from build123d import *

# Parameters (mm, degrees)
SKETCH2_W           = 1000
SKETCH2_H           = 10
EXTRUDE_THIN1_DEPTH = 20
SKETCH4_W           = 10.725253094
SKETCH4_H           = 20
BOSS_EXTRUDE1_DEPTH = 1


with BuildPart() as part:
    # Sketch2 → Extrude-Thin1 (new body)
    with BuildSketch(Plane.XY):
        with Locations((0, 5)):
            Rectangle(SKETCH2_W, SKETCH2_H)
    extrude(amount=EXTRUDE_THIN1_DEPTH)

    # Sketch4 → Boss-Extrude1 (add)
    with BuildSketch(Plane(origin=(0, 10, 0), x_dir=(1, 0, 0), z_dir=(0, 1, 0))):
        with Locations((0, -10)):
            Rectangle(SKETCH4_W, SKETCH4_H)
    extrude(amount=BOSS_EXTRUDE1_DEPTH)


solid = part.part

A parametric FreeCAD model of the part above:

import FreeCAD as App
import Part
import Sketcher

V = App.Vector
Q = App.Units.Quantity

doc = App.newDocument("Part")
body = doc.addObject("PartDesign::Body", "Body")

sketch1 = body.newObject("Sketcher::SketchObject", "Sketch")
sketch1.AttachmentSupport = (doc.getObject("XY_Plane"), [""])
sketch1.MapMode = "FlatFace"
sketch1.addGeometry(Part.LineSegment(V(-500, 10, 0), V(-500, 0, 0)), False)
sketch1.addGeometry(Part.LineSegment(V(-500, 0, 0), V(500, 0, 0)), False)
sketch1.addGeometry(Part.LineSegment(V(500, 0, 0), V(500, 10, 0)), False)
sketch1.addGeometry(Part.LineSegment(V(500, 10, 0), V(-500, 10, 0)), False)
sketch1.addConstraint(Sketcher.Constraint("Coincident", 0, 2, 1, 1))
sketch1.addConstraint(Sketcher.Constraint("Coincident", 1, 2, 2, 1))
sketch1.addConstraint(Sketcher.Constraint("Coincident", 2, 2, 3, 1))
sketch1.addConstraint(Sketcher.Constraint("Coincident", 3, 2, 0, 1))
sketch1.addConstraint(Sketcher.Constraint("Vertical", 0))
sketch1.addConstraint(Sketcher.Constraint("Horizontal", 1))
sketch1.addConstraint(Sketcher.Constraint("Vertical", 2))
sketch1.addConstraint(Sketcher.Constraint("Horizontal", 3))
sketch1.addConstraint(Sketcher.Constraint("Symmetric", 0, 2, 1, 2, -1, 1))
sketch1.addConstraint(Sketcher.Constraint("DistanceX", 1, 1, 1, 2, Q("1000 mm")))
sketch1.addConstraint(Sketcher.Constraint("DistanceY", 0, 2, 0, 1, Q("10 mm")))
pad1 = body.newObject("PartDesign::Pad", "Pad")
pad1.Profile = sketch1
pad1.Length = 20

sketch2 = body.newObject("Sketcher::SketchObject", "Sketch001")
sketch2.AttachmentSupport = (doc.getObject("XZ_Plane"), [""])
sketch2.MapMode = "FlatFace"
sketch2.AttachmentOffset = App.Placement(V(0, 0, -10), App.Rotation())
sketch2.addGeometry(Part.LineSegment(V(-5, 0, 0), V(-5, 20, 0)), False)
sketch2.addGeometry(Part.LineSegment(V(-5, 20, 0), V(5, 20, 0)), False)
sketch2.addGeometry(Part.LineSegment(V(5, 20, 0), V(5, 0, 0)), False)
sketch2.addGeometry(Part.LineSegment(V(5, 0, 0), V(-5, 0, 0)), False)
sketch2.addConstraint(Sketcher.Constraint("Coincident", 0, 2, 1, 1))
sketch2.addConstraint(Sketcher.Constraint("Coincident", 1, 2, 2, 1))
sketch2.addConstraint(Sketcher.Constraint("Coincident", 2, 2, 3, 1))
sketch2.addConstraint(Sketcher.Constraint("Coincident", 3, 2, 0, 1))
sketch2.addConstraint(Sketcher.Constraint("Vertical", 0))
sketch2.addConstraint(Sketcher.Constraint("Horizontal", 1))
sketch2.addConstraint(Sketcher.Constraint("Vertical", 2))
sketch2.addConstraint(Sketcher.Constraint("Horizontal", 3))
sketch2.addConstraint(Sketcher.Constraint("Symmetric", 2, 2, 3, 2, -1, 1))
sketch2.addConstraint(Sketcher.Constraint("DistanceY", 0, 1, 0, 2, Q("20 mm")))
sketch2.addConstraint(Sketcher.Constraint("DistanceX", 1, 1, 1, 2, Q("10.725253 mm")))
pad2 = body.newObject("PartDesign::Pad", "Pad001")
pad2.Profile = sketch2
pad2.Length = 1
pad2.Reversed = True

doc.recompute()
